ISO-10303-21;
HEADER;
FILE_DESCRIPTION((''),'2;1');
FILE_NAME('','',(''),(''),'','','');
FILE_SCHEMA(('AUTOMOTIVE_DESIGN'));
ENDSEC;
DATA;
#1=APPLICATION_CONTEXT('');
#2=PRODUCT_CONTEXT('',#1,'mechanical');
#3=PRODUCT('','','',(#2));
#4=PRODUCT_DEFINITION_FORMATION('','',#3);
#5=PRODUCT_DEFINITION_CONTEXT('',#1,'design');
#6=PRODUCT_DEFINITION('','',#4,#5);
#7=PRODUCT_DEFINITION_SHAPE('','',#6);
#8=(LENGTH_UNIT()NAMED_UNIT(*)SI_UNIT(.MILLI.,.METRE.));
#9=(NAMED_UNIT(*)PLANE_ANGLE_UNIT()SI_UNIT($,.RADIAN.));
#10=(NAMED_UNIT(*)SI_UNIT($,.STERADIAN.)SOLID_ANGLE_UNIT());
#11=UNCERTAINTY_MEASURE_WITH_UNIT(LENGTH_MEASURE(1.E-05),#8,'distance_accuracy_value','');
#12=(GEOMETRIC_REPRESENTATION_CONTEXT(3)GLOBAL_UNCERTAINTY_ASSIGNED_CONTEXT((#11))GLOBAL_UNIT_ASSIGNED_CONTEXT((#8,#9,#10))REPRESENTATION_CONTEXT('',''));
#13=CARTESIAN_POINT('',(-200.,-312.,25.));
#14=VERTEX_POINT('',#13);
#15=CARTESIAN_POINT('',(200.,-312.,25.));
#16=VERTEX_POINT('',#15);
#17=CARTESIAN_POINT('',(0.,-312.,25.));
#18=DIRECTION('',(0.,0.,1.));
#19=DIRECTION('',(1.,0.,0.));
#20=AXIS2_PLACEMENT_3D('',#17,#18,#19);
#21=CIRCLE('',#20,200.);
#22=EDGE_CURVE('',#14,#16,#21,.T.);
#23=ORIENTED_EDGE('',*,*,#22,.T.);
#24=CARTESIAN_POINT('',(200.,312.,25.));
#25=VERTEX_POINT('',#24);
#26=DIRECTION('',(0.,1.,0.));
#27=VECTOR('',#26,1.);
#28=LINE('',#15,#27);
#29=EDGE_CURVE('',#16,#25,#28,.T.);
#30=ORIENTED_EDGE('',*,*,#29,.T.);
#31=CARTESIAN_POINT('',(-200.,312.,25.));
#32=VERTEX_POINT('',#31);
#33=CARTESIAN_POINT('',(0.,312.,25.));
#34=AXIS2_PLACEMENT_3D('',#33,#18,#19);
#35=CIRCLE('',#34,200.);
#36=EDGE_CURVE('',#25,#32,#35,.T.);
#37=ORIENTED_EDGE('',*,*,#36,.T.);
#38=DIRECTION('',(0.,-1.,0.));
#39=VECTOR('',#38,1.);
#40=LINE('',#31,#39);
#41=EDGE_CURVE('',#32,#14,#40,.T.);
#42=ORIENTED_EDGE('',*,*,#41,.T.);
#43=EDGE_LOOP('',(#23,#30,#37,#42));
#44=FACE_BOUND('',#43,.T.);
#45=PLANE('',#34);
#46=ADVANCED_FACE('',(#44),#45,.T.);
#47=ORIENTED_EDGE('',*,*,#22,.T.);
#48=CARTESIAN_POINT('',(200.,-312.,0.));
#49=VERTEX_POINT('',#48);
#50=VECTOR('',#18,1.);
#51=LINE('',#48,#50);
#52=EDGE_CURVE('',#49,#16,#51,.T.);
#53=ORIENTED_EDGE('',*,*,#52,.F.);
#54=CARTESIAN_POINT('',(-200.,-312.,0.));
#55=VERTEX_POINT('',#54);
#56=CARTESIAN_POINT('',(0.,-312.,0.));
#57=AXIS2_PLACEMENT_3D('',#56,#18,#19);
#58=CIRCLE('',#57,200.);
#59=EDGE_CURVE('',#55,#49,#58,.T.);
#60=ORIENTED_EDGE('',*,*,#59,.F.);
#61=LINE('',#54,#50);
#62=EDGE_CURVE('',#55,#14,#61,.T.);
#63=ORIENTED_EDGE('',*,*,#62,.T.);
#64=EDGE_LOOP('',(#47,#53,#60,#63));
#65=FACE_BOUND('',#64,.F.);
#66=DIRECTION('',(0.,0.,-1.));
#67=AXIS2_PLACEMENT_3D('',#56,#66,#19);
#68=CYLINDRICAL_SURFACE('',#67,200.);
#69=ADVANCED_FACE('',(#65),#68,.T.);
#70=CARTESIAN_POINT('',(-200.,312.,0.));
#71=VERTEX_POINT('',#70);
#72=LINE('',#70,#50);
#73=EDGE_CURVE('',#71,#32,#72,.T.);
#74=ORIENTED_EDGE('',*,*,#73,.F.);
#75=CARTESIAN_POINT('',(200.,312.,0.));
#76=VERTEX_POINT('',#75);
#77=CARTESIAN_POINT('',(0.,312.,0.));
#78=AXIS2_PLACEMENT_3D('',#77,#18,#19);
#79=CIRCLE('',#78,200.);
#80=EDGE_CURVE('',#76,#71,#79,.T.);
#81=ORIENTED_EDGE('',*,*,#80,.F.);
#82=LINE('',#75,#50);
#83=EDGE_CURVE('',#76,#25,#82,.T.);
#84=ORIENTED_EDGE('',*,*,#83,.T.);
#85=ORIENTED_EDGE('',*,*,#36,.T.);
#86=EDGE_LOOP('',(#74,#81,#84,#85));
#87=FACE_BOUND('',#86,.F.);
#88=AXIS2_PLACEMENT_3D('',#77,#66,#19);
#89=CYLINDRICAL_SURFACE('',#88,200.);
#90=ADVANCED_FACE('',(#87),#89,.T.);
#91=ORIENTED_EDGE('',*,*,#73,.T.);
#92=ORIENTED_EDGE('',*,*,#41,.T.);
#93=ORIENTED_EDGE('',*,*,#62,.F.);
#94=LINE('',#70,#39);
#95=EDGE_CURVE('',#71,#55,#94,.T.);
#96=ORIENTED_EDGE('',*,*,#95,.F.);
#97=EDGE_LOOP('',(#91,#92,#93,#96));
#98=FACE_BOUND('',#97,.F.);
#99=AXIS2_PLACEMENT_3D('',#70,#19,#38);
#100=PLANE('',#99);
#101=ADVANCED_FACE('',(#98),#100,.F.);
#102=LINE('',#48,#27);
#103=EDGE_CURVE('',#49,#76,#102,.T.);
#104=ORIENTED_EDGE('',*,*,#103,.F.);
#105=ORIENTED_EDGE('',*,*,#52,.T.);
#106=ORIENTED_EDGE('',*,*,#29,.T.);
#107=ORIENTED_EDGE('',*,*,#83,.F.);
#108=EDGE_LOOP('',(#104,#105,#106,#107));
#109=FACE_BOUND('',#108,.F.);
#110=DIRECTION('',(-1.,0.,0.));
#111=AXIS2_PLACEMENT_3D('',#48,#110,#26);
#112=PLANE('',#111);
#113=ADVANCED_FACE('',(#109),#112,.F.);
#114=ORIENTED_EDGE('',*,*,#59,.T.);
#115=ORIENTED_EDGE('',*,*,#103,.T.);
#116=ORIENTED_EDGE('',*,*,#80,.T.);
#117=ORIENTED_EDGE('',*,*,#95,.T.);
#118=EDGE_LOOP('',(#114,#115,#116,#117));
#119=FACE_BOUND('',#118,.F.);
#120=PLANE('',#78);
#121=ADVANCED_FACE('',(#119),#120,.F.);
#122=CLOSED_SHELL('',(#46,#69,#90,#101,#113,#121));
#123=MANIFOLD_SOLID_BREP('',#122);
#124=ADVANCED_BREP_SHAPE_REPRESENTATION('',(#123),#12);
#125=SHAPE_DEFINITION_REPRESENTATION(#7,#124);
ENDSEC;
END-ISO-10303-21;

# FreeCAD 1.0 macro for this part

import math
import FreeCAD as App
import Part
import Sketcher
from FreeCAD import Vector

doc = App.newDocument("Part")
params = doc.addObject("Spreadsheet::Sheet", "Params")
for row, (alias, value) in enumerate([
    ("sketch1_radius", "200 mm"),
    ("sketch1_height", "624 mm"),
    ("pad1_length", "25 mm"),
], start=1):
    params.set(f"A{row}", alias)
    params.set(f"B{row}", "=" + value)
    params.setAlias(f"B{row}", alias)

body = doc.addObject("PartDesign::Body", "Body")

# Sketch on XY plane
sketch1 = body.newObject("Sketcher::SketchObject", "Sketch")
sketch1.AttachmentSupport = (doc.getObject("XY_Plane"), [""])
sketch1.MapMode = "FlatFace"
sketch1.addGeometry([
    Part.ArcOfCircle(Part.Circle(Vector(0, 312, 0), Vector(0, 0, 1), 200), math.radians(0), math.radians(180)),
    Part.LineSegment(Vector(-200, 312, 0), Vector(-200, -312, 0)),
    Part.ArcOfCircle(Part.Circle(Vector(0, -312, 0), Vector(0, 0, 1), 200), math.radians(180), math.radians(360)),
    Part.LineSegment(Vector(200, -312, 0), Vector(200, 312, 0)),
], False)
sketch1.addConstraint([
    Sketcher.Constraint("Tangent", 0, 2, 1, 1),
    Sketcher.Constraint("Tangent", 1, 2, 2, 1),
    Sketcher.Constraint("Tangent", 2, 2, 3, 1),
    Sketcher.Constraint("Tangent", 3, 2, 0, 1),
    Sketcher.Constraint("Vertical", 1),
    Sketcher.Constraint("Vertical", 3),
    Sketcher.Constraint("Symmetric", 0, 3, 2, 3, -1, 1),
    Sketcher.Constraint("Radius", 0, 200.0),
    Sketcher.Constraint("DistanceY", 1, 2, 1, 1, 624.0),
])
sketch1.setExpression("Constraints[7]", "Params.sketch1_radius")
sketch1.setExpression("Constraints[8]", "Params.sketch1_height")
pad1 = body.newObject("PartDesign::Pad", "Pad")
pad1.Profile = sketch1
pad1.setExpression("Length", "Params.pad1_length")

doc.recompute()
